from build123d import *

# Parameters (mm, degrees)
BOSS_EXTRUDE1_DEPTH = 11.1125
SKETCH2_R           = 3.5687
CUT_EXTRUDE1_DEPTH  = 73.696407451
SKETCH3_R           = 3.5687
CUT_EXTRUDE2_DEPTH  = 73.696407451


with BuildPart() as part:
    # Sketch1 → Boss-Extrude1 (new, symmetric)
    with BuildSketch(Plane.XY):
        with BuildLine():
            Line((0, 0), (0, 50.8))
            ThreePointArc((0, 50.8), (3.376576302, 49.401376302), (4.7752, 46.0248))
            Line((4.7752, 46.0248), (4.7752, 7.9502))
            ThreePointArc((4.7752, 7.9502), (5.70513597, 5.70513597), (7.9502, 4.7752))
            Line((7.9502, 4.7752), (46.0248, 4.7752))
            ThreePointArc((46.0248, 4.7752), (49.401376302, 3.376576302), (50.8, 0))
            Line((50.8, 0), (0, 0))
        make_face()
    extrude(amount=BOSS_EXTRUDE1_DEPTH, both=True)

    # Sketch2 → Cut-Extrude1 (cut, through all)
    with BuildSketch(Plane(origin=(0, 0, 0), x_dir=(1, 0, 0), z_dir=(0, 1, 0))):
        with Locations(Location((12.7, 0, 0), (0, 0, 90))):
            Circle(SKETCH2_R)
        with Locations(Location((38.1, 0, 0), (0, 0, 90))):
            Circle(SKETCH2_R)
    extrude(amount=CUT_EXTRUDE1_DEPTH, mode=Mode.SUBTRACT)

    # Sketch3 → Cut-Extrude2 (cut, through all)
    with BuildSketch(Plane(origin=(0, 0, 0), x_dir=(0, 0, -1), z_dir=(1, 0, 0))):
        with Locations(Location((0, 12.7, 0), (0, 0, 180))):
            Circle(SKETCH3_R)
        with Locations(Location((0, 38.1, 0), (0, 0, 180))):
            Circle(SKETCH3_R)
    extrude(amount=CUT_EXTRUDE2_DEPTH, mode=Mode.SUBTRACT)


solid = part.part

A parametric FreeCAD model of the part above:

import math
import FreeCAD as App
import Part
import Sketcher
Q = App.Units.Quantity

doc = App.newDocument("Part")
body = doc.addObject("PartDesign::Body", "Body")

# Sketch on XY plane
sketch1 = body.newObject("Sketcher::SketchObject", "Sketch")
sketch1.AttachmentSupport = (doc.getObject("XY_Plane"), [""])
sketch1.MapMode = "FlatFace"
sketch1.addGeometry([
    Part.LineSegment(App.Vector(0, 50.8, 0), App.Vector(0, 0, 0)),  # 0
    Part.LineSegment(App.Vector(0, 0, 0), App.Vector(50.8, 0, 0)),  # 1
    Part.ArcOfCircle(Part.Circle(App.Vector(46, 0, 0), App.Vector(0, 0, 1), 4.8), math.radians(0), math.radians(90)),  # 2
    Part.LineSegment(App.Vector(46, 4.8, 0), App.Vector(8, 4.8, 0)),  # 3
    Part.ArcOfCircle(Part.Circle(App.Vector(8, 8, 0), App.Vector(0, 0, 1), 3.2), math.radians(-180), math.radians(-90)),  # 4
    Part.LineSegment(App.Vector(4.8, 8, 0), App.Vector(4.8, 46, 0)),  # 5
    Part.ArcOfCircle(Part.Circle(App.Vector(0, 46, 0), App.Vector(0, 0, 1), 4.8), math.radians(0), math.radians(90)),  # 6
], False)
sketch1.addConstraint([
    Sketcher.Constraint("Coincident", 0, 2, 1, 1),
    Sketcher.Constraint("Coincident", 1, 2, 2, 1),
    Sketcher.Constraint("Tangent", 2, 2, 3, 1),
    Sketcher.Constraint("Tangent", 3, 2, 4, 2),
    Sketcher.Constraint("Tangent", 4, 1, 5, 1),
    Sketcher.Constraint("Tangent", 5, 2, 6, 1),
    Sketcher.Constraint("Coincident", 6, 2, 0, 1),
    Sketcher.Constraint("Vertical", 0),
    Sketcher.Constraint("Horizontal", 1),
    Sketcher.Constraint("Horizontal", 3),
    Sketcher.Constraint("Vertical", 5),
    Sketcher.Constraint("Coincident", 0, 2, -1, 1),
    Sketcher.Constraint("Equal", 2, 6),
    Sketcher.Constraint("PointOnObject", 2, 3, -1),
    Sketcher.Constraint("PointOnObject", 6, 3, -2),
    Sketcher.Constraint("Equal", 1, 0),
    Sketcher.Constraint("DistanceX", 1, 1, 1, 2, Q("2 in")),
    Sketcher.Constraint("Radius", 2, Q("0.188 in")),
    Sketcher.Constraint("Radius", 4, Q("0.125 in")),
])
pad1 = body.newObject("PartDesign::Pad", "Pad")
pad1.Profile = sketch1
pad1.Length = Q("0.875 in")
pad1.Midplane = True

# Sketch on XZ plane
sketch2 = body.newObject("Sketcher::SketchObject", "Sketch001")
sketch2.AttachmentSupport = (doc.getObject("XZ_Plane"), [""])
sketch2.MapMode = "FlatFace"
sketch2.addGeometry([
    Part.Circle(App.Vector(12.7, 0, 0), App.Vector(0, 0, 1), 3.6),
    Part.Circle(App.Vector(38.1, 0, 0), App.Vector(0, 0, 1), 3.6),
], False)
sketch2.addConstraint([
    Sketcher.Constraint("Equal", 0, 1),
    Sketcher.Constraint("PointOnObject", 0, 3, -1),
    Sketcher.Constraint("PointOnObject", 1, 3, -1),
    Sketcher.Constraint("Diameter", 0, Q("0.281 in")),
    Sketcher.Constraint("DistanceX", 0, 3, 1, 3, Q("1 in")),
    Sketcher.Constraint("DistanceX", -1, 1, 0, 3, Q("0.5 in")),
])
pocket1 = body.newObject("PartDesign::Pocket", "Pocket")
pocket1.Profile = sketch2
pocket1.Type = "ThroughAll"

# Sketch on YZ plane
sketch3 = body.newObject("Sketcher::SketchObject", "Sketch002")
sketch3.AttachmentSupport = (doc.getObject("YZ_Plane"), [""])
sketch3.MapMode = "FlatFace"
sketch3.addGeometry([
    Part.Circle(App.Vector(12.7, 0, 0), App.Vector(0, 0, 1), 3.6),
    Part.Circle(App.Vector(38.1, 0, 0), App.Vector(0, 0, 1), 3.6),
], False)
sketch3.addConstraint([
    Sketcher.Constraint("Equal", 0, 1),
    Sketcher.Constraint("PointOnObject", 0, 3, -1),
    Sketcher.Constraint("PointOnObject", 1, 3, -1),
    Sketcher.Constraint("Diameter", 0, Q("0.281 in")),
    Sketcher.Constraint("DistanceX", 0, 3, 1, 3, Q("1 in")),
    Sketcher.Constraint("DistanceX", -1, 1, 0, 3, Q("0.5 in")),
])
pocket2 = body.newObject("PartDesign::Pocket", "Pocket001")
pocket2.Profile = sketch3
pocket2.Type = "ThroughAll"
pocket2.Reversed = True

doc.recompute()
